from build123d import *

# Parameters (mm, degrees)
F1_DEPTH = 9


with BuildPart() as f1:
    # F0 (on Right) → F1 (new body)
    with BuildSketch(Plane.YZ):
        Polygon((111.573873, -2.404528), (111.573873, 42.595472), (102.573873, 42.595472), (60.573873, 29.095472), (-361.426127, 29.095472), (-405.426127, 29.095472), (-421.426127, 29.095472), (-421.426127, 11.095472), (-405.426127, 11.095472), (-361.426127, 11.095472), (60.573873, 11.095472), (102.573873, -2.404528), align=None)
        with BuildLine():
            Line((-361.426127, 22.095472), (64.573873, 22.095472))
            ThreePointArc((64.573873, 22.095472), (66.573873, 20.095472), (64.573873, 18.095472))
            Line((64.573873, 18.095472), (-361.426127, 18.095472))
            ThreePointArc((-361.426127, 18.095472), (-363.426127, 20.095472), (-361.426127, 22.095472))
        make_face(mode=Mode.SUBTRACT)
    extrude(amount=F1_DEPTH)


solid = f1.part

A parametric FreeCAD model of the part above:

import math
import FreeCAD as App
import Part
import Sketcher

V = App.Vector
Q = App.Units.Quantity

doc = App.newDocument("Part")
body = doc.addObject("PartDesign::Body", "Body")

# Sketch on YZ plane
sketch1 = body.newObject("Sketcher::SketchObject", "Sketch")
sketch1.AttachmentSupport = (doc.getObject("YZ_Plane"), [""])
sketch1.MapMode = "FlatFace"
sketch1.addGeometry([
    Part.LineSegment(V(111.6, -2.4, 0), V(111.6, 42.6, 0)),  # 0
    Part.LineSegment(V(111.6, 42.6, 0), V(102.6, 42.6, 0)),  # 1
    Part.LineSegment(V(102.6, 42.6, 0), V(60.6, 29.1, 0)),  # 2
    Part.LineSegment(V(60.6, 29.1, 0), V(-421.4, 29.1, 0)),  # 3
    Part.LineSegment(V(-421.4, 29.1, 0), V(-421.4, 11.1, 0)),  # 4
    Part.LineSegment(V(-421.4, 11.1, 0), V(60.6, 11.1, 0)),  # 5
    Part.LineSegment(V(60.6, 11.1, 0), V(102.6, -2.4, 0)),  # 6
    Part.LineSegment(V(102.6, -2.4, 0), V(111.6, -2.4, 0)),  # 7
    Part.ArcOfCircle(Part.Circle(V(-361.4, 20.1, 0), V(0, 0, 1), 2), math.radians(90), math.radians(270)),  # 8
    Part.LineSegment(V(-361.4, 22.1, 0), V(64.6, 22.1, 0)),  # 9
    Part.ArcOfCircle(Part.Circle(V(64.6, 20.1, 0), V(0, 0, 1), 2), math.radians(-90), math.radians(90)),  # 10
    Part.LineSegment(V(64.6, 18.1, 0), V(-361.4, 18.1, 0)),  # 11
], False)
sketch1.addConstraint([
    Sketcher.Constraint("Coincident", 0, 2, 1, 1),
    Sketcher.Constraint("Coincident", 1, 2, 2, 1),
    Sketcher.Constraint("Coincident", 2, 2, 3, 1),
    Sketcher.Constraint("Coincident", 3, 2, 4, 1),
    Sketcher.Constraint("Coincident", 4, 2, 5, 1),
    Sketcher.Constraint("Coincident", 5, 2, 6, 1),
    Sketcher.Constraint("Coincident", 6, 2, 7, 1),
    Sketcher.Constraint("Coincident", 7, 2, 0, 1),
    Sketcher.Constraint("Tangent", 8, 1, 9, 1),
    Sketcher.Constraint("Tangent", 9, 2, 10, 2),
    Sketcher.Constraint("Tangent", 10, 1, 11, 1),
    Sketcher.Constraint("Tangent", 11, 2, 8, 2),
    Sketcher.Constraint("Vertical", 0),
    Sketcher.Constraint("Horizontal", 1),
    Sketcher.Constraint("Horizontal", 3),
    Sketcher.Constraint("Vertical", 4),
    Sketcher.Constraint("Horizontal", 5),
    Sketcher.Constraint("Horizontal", 7),
    Sketcher.Constraint("Horizontal", 9),
    Sketcher.Constraint("Horizontal", 11),
    Sketcher.Constraint("Vertical", 2, 2, 5, 2),
    Sketcher.Constraint("Vertical", 1, 2, 6, 2),
    Sketcher.Constraint("Equal", 2, 6),
    Sketcher.Constraint("Radius", 8, Q("2 mm")),
    Sketcher.Constraint("DistanceX", 1, 2, 1, 1, Q("9 mm")),
    Sketcher.Constraint("DistanceX", 3, 2, 3, 1, Q("482 mm")),
    Sketcher.Constraint("DistanceX", 9, 1, 9, 2, Q("426 mm")),
    Sketcher.Constraint("DistanceY", 0, 1, 0, 2, Q("45 mm")),
    Sketcher.Constraint("DistanceY", 4, 2, 4, 1, Q("18 mm")),
    Sketcher.Constraint("DistanceX", 10, 3, 0, 2, Q("47 mm")),
    Sketcher.Constraint("DistanceX", 2, 2, 10, 3, Q("4 mm")),
    Sketcher.Constraint("DistanceY", 10, 3, 2, 2, Q("9 mm")),
    Sketcher.Constraint("DistanceY", -1, 1, 4, 2, Q("11.095472 mm")),
    Sketcher.Constraint("DistanceX", 8, 3, -1, 1, Q("361.426127 mm")),
])
pad1 = body.newObject("PartDesign::Pad", "Pad")
pad1.Profile = sketch1
pad1.Length = 9

doc.recompute()
